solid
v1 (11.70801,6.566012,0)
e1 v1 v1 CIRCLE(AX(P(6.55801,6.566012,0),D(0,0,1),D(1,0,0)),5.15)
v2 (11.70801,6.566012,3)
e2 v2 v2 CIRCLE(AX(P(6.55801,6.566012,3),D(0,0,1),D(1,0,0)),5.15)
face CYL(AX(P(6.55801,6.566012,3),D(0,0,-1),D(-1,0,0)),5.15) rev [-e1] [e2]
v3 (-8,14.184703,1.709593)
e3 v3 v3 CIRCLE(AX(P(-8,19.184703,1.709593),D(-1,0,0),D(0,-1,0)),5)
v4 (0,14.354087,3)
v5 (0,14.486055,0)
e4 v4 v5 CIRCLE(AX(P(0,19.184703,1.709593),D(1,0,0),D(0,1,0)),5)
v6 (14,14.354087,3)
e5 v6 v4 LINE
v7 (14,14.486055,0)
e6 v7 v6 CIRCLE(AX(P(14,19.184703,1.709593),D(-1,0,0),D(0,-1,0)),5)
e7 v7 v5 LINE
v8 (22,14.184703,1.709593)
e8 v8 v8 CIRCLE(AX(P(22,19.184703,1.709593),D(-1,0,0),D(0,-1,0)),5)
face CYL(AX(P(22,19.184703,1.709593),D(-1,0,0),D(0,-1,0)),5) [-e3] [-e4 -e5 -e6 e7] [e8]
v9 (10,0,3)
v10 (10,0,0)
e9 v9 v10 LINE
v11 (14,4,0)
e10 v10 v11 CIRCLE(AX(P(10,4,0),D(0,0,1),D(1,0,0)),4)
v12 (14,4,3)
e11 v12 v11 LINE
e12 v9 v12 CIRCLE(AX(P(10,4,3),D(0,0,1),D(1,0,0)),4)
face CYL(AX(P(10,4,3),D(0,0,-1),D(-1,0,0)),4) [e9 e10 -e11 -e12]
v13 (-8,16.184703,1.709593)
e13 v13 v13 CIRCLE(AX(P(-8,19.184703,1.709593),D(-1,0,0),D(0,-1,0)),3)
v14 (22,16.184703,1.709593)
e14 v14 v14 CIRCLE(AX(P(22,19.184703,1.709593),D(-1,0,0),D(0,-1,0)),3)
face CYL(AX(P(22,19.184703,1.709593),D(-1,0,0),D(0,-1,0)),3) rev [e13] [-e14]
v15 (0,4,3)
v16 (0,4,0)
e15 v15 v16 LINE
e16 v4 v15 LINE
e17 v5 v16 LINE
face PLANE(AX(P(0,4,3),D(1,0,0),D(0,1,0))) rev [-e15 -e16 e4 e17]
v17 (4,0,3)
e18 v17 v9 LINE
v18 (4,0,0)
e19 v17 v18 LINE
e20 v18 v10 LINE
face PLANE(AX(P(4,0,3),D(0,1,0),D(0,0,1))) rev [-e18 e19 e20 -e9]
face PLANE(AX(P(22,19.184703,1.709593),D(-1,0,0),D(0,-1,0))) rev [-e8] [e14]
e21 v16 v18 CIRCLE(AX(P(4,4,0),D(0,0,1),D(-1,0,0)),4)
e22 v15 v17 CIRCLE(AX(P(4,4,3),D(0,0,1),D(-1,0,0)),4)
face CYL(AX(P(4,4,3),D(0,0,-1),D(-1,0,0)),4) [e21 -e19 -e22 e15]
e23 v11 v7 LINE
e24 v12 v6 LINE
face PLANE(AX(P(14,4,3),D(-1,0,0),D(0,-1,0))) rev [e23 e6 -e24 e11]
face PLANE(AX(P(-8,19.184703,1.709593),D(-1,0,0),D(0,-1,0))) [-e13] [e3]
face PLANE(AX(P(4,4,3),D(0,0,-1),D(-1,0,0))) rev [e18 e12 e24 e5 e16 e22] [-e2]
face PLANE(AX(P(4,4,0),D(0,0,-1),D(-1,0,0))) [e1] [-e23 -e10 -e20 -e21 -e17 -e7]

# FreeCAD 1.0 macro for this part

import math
import FreeCAD as App
import Part
import Sketcher

V = App.Vector

doc = App.newDocument("Part")
body = doc.addObject("PartDesign::Body", "Body")

# Sketch on XY plane
sketch1 = doc.addObject("Sketcher::SketchObject", "Sketch")
body.addObject(sketch1)
sketch1.AttachmentSupport = (doc.XY_Plane, [""])
sketch1.MapMode = "FlatFace"
sketch1.addGeometry([
    Part.LineSegment(V(4, 0, 0), V(10, 0, 0)),  # 0
    Part.ArcOfCircle(Part.Circle(V(10, 4, 0), V(0, 0, 1), 4), math.radians(-90), math.radians(0)),  # 1
    Part.LineSegment(V(14, 4, 0), V(14, 16, 0)),  # 2
    Part.ArcOfCircle(Part.Circle(V(10, 16, 0), V(0, 0, 1), 4), math.radians(0), math.radians(90)),  # 3
    Part.LineSegment(V(10, 20, 0), V(4, 20, 0)),  # 4
    Part.ArcOfCircle(Part.Circle(V(4, 16, 0), V(0, 0, 1), 4), math.radians(90), math.radians(180)),  # 5
    Part.LineSegment(V(0, 16, 0), V(0, 4, 0)),  # 6
    Part.ArcOfCircle(Part.Circle(V(4, 4, 0), V(0, 0, 1), 4), math.radians(180), math.radians(270)),  # 7
    Part.Circle(V(6.55801, 6.566012, 0), V(0, 0, 1), 5.15),  # 8
], False)
sketch1.addConstraint([
    Sketcher.Constraint("Tangent", 0, 2, 1, 1),
    Sketcher.Constraint("Tangent", 1, 2, 2, 1),
    Sketcher.Constraint("Tangent", 2, 2, 3, 1),
    Sketcher.Constraint("Tangent", 3, 2, 4, 1),
    Sketcher.Constraint("Tangent", 4, 2, 5, 1),
    Sketcher.Constraint("Tangent", 5, 2, 6, 1),
    Sketcher.Constraint("Tangent", 6, 2, 7, 1),
    Sketcher.Constraint("Tangent", 7, 2, 0, 1),
    Sketcher.Constraint("Horizontal", 0),
    Sketcher.Constraint("Vertical", 2),
    Sketcher.Constraint("Horizontal", 4),
    Sketcher.Constraint("Vertical", 6),
    Sketcher.Constraint("Equal", 1, 3),
    Sketcher.Constraint("Equal", 3, 5),
    Sketcher.Constraint("Equal", 5, 7),
    Sketcher.Constraint("PointOnObject", 0, 2, -1),
    Sketcher.Constraint("PointOnObject", 5, 2, -2),
    Sketcher.Constraint("Radius", 1, 4.0),
    Sketcher.Constraint("Diameter", 8, 10.3),
    Sketcher.Constraint("DistanceX", 0, 1, 0, 2, 6.0),
    Sketcher.Constraint("DistanceY", 2, 1, 2, 2, 12.0),
    Sketcher.Constraint("DistanceX", -1, 1, 8, 3, 6.55801),
    Sketcher.Constraint("DistanceY", -1, 1, 8, 3, 6.566012),
])
pad1 = doc.addObject("PartDesign::Pad", "Pad")
body.addObject(pad1)
pad1.Profile = sketch1
pad1.Length = 3

# Sketch on YZ plane
sketch2 = doc.addObject("Sketcher::SketchObject", "Sketch001")
body.addObject(sketch2)
sketch2.AttachmentSupport = (doc.YZ_Plane, [""])
sketch2.MapMode = "FlatFace"
sketch2.AttachmentOffset = App.Placement(V(0, 0, 7), App.Rotation())
sketch2.addGeometry([
    Part.Circle(V(19.184703, 1.709593, 0), V(0, 0, 1), 5),
    Part.Circle(V(19.184703, 1.709593, 0), V(0, 0, 1), 3),
], False)
sketch2.addConstraint([
    Sketcher.Constraint("Coincident", 1, 3, 0, 3),
    Sketcher.Constraint("Diameter", 0, 10.0),
    Sketcher.Constraint("Diameter", 1, 6.0),
    Sketcher.Constraint("DistanceX", -1, 1, 0, 3, 19.184703),
    Sketcher.Constraint("DistanceY", -1, 1, 0, 3, 1.709593),
])
pad2 = doc.addObject("PartDesign::Pad", "Pad001")
body.addObject(pad2)
pad2.Profile = sketch2
pad2.Type = "TwoLengths"
pad2.Length = 15
pad2.Length2 = 15
pad2.Reversed = True

# Sketch on YZ plane
sketch3 = doc.addObject("Sketcher::SketchObject", "Sketch002")
body.addObject(sketch3)
sketch3.AttachmentSupport = (doc.YZ_Plane, [""])
sketch3.MapMode = "FlatFace"
sketch3.AttachmentOffset = App.Placement(V(0, 0, 22), App.Rotation())
sketch3.addGeometry(Part.Circle(V(19.184703, 1.709593, 0), V(0, 0, 1), 3), False)
sketch3.addConstraint([
    Sketcher.Constraint("Diameter", 0, 6.0),
    Sketcher.Constraint("DistanceX", -1, 1, 0, 3, 19.184703),
    Sketcher.Constraint("DistanceY", -1, 1, 0, 3, 1.709593),
])
pocket1 = doc.addObject("PartDesign::Pocket", "Pocket")
body.addObject(pocket1)
pocket1.Profile = sketch3
pocket1.Type = "ThroughAll"

doc.recompute()
